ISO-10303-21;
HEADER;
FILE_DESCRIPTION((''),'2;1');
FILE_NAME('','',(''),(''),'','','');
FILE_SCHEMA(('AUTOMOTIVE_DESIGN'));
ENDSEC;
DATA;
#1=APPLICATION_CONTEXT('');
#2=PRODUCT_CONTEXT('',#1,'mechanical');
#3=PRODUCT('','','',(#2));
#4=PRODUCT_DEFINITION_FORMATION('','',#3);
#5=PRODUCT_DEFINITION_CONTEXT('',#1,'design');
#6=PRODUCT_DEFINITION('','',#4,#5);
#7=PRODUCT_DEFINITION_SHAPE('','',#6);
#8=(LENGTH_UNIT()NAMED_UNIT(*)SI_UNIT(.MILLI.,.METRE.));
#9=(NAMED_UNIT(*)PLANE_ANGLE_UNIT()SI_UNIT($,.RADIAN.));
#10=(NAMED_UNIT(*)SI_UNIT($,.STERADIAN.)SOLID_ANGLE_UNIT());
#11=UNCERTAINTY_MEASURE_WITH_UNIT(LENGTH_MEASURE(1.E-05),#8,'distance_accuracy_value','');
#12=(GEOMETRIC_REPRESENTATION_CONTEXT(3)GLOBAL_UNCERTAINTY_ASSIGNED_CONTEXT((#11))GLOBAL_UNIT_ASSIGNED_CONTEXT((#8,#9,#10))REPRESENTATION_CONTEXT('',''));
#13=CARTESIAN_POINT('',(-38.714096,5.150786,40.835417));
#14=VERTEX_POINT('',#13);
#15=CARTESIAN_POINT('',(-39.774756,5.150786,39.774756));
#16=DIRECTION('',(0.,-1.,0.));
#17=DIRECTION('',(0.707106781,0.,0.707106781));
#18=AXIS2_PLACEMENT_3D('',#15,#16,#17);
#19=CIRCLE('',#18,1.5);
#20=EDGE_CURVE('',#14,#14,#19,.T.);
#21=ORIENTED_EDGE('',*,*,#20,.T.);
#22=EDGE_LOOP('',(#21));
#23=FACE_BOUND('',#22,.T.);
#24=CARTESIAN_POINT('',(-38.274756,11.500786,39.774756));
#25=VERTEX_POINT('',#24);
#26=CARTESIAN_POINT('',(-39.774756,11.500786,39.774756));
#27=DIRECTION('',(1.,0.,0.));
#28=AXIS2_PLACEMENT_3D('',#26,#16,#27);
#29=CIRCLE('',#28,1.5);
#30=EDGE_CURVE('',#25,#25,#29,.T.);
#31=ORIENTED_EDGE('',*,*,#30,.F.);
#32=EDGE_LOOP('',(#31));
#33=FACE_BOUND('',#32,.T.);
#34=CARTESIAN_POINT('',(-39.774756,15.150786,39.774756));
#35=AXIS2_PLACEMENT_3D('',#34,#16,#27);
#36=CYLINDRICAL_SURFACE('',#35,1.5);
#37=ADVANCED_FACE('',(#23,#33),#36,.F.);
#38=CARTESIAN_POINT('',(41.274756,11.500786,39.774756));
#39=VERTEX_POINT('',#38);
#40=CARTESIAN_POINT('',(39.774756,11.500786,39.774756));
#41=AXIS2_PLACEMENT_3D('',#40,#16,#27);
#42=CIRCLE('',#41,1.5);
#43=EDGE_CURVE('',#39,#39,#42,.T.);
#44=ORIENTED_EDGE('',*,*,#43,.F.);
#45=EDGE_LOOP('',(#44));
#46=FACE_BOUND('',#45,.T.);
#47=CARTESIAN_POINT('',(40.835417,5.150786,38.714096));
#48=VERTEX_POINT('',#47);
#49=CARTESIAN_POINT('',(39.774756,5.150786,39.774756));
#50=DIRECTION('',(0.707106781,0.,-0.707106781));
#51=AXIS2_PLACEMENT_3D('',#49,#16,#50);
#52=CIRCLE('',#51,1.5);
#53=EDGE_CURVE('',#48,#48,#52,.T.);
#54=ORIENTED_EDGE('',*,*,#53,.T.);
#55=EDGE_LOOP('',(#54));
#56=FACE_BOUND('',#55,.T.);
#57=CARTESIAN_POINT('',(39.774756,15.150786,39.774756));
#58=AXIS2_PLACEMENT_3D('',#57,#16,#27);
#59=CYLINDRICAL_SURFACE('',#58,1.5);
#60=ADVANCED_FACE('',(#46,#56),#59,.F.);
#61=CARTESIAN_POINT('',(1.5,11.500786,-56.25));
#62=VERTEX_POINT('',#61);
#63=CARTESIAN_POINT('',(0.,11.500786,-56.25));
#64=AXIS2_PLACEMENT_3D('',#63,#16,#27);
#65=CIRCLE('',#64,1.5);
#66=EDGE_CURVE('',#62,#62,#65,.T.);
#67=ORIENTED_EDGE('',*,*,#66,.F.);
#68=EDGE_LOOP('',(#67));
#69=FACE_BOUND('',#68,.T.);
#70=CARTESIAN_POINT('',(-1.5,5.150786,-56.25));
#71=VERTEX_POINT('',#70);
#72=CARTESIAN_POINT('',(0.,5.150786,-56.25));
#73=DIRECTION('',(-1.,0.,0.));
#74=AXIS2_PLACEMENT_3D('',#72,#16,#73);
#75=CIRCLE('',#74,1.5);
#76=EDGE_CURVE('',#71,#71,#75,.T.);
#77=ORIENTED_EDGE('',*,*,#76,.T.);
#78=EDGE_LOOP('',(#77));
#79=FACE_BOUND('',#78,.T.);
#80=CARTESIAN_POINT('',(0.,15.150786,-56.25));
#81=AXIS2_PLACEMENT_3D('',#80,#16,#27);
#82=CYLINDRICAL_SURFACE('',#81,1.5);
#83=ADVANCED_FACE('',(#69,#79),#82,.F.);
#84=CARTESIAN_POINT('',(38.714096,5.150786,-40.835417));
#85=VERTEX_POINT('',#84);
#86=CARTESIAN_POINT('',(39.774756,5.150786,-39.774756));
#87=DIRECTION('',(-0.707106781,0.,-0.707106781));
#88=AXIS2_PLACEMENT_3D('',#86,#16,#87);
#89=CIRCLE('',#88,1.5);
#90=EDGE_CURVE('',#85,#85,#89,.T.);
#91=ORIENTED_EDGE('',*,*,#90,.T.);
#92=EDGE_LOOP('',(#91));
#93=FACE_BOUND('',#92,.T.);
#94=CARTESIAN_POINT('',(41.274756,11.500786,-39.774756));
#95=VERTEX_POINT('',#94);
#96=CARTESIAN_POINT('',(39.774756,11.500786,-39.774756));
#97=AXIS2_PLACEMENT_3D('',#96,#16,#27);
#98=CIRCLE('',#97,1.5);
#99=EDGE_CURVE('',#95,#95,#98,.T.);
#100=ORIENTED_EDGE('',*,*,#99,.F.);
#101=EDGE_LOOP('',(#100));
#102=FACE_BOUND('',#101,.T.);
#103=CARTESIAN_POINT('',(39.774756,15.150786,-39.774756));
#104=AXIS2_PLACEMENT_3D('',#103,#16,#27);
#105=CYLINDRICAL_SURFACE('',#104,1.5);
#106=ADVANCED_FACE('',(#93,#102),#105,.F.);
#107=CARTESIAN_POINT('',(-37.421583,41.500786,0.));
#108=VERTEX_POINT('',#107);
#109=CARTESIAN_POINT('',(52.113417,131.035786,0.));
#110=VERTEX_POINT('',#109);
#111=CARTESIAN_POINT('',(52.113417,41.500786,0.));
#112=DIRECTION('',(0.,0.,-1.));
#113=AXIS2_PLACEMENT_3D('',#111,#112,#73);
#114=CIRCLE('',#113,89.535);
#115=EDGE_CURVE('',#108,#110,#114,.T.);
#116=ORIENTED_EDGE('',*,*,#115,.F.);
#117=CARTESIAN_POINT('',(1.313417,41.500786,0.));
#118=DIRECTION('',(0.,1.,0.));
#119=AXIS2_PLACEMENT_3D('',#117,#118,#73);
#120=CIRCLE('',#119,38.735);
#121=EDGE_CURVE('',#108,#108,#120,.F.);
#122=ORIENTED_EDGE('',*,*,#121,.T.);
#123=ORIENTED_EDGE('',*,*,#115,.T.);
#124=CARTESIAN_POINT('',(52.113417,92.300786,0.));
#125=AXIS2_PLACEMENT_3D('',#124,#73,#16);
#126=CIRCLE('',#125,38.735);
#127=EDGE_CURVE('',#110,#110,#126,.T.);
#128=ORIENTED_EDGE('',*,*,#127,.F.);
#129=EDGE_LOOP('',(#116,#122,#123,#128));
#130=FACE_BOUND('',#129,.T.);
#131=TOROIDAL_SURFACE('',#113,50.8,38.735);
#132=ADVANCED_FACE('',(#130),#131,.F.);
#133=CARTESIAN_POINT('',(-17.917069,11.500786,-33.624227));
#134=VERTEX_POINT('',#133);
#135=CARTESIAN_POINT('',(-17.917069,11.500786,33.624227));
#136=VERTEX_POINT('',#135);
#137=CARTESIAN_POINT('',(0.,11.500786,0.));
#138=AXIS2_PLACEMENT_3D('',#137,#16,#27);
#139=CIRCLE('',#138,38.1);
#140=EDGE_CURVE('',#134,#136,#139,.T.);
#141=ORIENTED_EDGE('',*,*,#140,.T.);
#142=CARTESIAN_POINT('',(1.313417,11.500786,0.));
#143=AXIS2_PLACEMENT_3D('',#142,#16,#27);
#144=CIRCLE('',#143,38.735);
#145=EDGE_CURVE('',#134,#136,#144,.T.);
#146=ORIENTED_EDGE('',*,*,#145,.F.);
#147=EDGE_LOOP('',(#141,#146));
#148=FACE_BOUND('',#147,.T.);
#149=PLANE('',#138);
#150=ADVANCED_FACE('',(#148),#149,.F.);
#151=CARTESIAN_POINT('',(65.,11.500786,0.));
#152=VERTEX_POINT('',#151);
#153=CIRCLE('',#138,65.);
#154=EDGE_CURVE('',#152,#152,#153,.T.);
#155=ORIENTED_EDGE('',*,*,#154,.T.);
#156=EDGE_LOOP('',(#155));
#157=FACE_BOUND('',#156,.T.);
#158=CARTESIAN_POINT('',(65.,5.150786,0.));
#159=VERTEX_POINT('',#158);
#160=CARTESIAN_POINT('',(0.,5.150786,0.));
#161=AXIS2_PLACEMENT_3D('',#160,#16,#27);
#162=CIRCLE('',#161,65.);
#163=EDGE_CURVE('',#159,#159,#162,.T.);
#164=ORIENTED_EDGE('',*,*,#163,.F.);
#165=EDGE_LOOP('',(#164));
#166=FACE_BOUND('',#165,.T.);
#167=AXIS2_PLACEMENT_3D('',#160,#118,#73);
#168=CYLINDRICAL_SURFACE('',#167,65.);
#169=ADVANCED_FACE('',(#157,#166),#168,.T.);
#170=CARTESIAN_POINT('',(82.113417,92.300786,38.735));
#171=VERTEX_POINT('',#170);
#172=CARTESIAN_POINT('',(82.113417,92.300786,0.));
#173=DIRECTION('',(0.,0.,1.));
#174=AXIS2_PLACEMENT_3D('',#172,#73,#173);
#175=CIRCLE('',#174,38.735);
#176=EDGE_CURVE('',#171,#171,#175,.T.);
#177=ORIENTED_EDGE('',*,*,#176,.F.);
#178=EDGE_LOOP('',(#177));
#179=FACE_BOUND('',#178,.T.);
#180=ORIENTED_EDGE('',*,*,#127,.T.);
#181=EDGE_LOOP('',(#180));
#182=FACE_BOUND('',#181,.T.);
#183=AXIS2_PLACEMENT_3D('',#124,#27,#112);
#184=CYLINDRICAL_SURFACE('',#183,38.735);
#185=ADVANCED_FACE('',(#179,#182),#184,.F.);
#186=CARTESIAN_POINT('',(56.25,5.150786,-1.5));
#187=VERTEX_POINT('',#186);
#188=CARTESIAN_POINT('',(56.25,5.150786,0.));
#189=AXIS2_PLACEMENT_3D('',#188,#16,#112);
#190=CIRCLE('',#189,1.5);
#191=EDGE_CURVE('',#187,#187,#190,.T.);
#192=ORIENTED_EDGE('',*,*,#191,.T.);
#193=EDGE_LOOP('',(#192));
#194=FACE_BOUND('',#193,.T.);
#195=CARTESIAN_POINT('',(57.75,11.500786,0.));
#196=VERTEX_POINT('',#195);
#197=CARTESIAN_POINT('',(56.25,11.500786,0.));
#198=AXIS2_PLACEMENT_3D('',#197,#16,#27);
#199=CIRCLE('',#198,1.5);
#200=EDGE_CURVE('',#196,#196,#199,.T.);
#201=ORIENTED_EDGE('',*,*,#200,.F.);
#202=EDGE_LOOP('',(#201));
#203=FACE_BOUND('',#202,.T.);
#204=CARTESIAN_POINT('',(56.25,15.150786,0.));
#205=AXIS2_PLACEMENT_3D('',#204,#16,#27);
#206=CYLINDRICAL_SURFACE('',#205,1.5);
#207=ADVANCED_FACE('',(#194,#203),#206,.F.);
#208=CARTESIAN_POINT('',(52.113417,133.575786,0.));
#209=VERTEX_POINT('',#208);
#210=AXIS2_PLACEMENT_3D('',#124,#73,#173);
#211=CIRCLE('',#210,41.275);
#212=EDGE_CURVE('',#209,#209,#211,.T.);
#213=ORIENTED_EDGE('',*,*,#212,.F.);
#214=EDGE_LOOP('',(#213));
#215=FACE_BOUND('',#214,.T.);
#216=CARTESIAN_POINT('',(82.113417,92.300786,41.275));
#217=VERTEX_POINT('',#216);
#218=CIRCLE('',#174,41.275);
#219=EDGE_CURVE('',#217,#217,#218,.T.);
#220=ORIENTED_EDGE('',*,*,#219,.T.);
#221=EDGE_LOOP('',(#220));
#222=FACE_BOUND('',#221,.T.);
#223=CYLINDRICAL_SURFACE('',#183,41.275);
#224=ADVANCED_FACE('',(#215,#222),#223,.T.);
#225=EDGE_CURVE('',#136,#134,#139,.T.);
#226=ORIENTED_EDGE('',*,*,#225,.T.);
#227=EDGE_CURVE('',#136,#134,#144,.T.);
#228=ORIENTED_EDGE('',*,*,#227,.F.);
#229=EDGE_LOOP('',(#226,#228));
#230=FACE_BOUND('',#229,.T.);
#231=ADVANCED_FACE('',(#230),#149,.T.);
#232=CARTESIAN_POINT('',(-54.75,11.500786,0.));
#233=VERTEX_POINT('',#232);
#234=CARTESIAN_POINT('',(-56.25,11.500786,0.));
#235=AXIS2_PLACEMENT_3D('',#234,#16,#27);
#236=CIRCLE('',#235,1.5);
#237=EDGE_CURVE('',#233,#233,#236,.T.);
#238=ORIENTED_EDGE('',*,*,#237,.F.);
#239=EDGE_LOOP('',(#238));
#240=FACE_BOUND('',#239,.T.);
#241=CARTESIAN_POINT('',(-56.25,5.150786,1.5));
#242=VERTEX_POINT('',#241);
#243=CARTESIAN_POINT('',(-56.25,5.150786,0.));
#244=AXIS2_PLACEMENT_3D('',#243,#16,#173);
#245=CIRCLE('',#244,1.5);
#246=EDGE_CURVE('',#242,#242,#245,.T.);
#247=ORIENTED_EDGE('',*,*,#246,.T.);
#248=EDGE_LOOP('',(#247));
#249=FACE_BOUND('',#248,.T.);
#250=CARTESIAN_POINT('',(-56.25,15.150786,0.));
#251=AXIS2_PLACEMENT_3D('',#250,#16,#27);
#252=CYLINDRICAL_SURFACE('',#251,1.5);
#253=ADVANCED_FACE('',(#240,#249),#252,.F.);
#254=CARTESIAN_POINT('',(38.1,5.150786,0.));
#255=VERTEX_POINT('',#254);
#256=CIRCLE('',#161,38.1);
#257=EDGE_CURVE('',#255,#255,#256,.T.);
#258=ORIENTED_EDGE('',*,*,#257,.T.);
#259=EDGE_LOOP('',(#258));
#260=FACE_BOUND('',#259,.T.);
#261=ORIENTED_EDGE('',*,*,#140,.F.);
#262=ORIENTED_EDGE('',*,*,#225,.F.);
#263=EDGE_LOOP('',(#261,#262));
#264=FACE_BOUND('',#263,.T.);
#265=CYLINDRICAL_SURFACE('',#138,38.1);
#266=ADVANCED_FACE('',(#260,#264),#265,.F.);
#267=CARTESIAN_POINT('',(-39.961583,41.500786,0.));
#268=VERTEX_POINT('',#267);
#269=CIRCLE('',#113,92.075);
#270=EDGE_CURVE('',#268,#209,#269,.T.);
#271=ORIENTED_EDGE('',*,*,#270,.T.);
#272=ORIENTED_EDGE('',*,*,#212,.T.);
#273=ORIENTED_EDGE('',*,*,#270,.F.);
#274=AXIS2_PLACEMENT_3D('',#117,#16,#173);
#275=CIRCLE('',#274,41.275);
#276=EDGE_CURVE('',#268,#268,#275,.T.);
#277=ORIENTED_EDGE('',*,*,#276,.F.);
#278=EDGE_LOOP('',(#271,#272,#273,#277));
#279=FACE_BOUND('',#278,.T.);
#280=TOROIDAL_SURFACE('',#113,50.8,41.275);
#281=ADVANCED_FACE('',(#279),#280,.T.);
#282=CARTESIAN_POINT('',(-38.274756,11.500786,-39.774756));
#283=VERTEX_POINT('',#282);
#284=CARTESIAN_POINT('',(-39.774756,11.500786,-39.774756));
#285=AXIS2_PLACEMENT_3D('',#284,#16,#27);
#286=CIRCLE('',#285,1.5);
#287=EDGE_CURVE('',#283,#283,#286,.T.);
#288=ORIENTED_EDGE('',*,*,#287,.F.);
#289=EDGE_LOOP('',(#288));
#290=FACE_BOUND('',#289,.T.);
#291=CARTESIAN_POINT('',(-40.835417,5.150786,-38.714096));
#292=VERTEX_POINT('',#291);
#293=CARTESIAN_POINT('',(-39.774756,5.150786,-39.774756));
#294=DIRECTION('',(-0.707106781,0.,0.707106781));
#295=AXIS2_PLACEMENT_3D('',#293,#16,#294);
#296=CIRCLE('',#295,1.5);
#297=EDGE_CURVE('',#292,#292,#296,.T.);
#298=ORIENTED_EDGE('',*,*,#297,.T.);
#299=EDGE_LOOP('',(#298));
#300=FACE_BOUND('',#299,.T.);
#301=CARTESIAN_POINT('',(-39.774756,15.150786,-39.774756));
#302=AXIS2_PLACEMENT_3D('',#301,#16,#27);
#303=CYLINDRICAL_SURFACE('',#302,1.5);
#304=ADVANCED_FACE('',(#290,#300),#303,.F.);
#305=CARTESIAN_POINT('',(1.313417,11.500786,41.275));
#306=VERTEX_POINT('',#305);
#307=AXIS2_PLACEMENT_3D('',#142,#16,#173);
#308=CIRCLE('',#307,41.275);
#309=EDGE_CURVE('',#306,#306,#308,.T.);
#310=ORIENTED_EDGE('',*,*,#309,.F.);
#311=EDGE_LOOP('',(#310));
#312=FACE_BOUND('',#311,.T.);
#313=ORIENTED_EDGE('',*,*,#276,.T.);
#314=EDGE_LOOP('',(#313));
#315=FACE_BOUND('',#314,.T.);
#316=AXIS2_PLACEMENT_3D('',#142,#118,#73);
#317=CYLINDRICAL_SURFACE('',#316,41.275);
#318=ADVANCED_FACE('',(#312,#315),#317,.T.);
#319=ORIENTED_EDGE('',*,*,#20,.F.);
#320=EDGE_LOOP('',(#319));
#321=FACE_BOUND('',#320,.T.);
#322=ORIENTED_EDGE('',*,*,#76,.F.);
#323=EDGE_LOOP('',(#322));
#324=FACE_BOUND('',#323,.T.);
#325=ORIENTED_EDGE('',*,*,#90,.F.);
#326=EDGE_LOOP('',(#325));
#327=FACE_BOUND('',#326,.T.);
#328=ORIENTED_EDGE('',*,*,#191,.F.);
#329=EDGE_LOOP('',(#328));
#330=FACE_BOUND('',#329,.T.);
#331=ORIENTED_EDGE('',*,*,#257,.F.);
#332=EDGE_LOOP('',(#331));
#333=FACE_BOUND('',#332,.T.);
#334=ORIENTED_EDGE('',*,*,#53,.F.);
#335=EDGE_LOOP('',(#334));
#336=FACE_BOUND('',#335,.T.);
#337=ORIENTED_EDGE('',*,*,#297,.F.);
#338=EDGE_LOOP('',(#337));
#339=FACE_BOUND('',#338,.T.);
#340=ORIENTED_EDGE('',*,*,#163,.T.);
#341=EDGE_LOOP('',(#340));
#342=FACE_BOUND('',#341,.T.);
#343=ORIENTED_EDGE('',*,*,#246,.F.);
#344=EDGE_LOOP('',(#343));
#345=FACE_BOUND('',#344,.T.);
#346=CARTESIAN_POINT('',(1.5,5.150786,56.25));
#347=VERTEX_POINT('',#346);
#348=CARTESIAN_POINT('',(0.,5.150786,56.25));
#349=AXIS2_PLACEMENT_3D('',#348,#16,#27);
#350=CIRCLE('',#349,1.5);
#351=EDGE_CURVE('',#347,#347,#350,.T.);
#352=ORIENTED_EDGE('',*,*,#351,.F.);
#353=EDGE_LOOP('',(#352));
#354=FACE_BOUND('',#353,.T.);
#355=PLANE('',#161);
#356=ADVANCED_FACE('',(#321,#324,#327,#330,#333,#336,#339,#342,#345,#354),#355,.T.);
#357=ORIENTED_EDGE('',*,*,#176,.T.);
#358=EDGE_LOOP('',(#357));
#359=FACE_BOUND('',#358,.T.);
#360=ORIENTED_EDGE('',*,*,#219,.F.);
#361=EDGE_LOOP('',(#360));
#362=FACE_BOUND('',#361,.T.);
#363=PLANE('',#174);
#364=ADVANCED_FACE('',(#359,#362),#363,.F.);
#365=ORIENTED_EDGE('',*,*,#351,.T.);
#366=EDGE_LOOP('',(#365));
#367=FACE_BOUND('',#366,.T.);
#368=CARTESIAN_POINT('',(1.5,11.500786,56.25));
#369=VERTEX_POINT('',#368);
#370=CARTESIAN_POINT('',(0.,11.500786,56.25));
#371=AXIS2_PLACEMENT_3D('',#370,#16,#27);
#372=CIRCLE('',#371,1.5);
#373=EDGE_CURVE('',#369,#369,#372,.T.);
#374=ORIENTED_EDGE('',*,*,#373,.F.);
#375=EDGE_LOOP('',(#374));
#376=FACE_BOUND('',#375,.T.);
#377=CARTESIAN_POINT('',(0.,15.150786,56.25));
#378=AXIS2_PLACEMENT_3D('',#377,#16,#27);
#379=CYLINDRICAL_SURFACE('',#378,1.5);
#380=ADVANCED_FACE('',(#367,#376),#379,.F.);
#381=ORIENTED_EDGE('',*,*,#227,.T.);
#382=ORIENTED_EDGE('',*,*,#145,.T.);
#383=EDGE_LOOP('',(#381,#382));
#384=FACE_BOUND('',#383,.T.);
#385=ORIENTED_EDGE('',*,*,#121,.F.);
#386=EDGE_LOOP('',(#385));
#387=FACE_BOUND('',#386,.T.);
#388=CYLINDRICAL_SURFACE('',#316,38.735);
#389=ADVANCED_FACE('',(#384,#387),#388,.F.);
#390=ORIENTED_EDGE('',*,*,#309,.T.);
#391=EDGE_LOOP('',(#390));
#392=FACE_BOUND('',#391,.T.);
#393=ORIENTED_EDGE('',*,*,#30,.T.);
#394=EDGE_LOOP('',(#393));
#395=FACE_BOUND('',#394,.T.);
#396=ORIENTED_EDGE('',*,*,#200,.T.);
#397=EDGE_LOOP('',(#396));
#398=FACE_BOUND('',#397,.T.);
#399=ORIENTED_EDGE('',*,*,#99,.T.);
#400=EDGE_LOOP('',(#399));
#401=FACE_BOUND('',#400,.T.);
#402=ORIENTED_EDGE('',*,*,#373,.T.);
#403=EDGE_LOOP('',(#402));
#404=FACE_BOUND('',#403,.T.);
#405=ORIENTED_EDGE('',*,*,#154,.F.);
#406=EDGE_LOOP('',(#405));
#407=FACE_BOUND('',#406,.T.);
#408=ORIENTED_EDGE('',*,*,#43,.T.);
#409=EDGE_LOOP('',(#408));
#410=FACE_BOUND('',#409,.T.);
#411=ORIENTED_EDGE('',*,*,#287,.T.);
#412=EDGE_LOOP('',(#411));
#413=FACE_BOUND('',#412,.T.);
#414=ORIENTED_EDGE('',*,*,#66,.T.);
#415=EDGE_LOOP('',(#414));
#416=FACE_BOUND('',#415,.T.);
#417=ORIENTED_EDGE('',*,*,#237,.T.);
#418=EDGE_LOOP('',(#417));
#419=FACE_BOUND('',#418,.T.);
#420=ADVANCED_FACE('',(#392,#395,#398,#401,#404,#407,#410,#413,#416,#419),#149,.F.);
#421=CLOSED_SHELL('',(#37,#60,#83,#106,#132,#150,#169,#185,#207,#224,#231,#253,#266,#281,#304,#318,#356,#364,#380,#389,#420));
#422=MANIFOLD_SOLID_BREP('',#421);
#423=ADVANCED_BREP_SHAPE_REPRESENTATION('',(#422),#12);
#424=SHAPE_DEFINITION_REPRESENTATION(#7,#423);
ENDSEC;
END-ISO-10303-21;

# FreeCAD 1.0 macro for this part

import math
import FreeCAD as App
import Part
import Sketcher
from FreeCAD import Vector
Q = App.Units.Quantity


def faces_at(feature, points):
    """Names of the faces that lie closest to the given points."""
    faces = feature.Shape.Faces
    near = lambda p: min(range(len(faces)), key=lambda i: faces[i].distToShape(Part.Vertex(*p))[0])
    return sorted({f"Face{near(p) + 1}" for p in points})

doc = App.newDocument("Part")
params = doc.addObject("Spreadsheet::Sheet", "Params")
for row, (alias, value) in enumerate([
    ("sketch1_diameter", "3.25 in"),
    ("sketch2_radius", "2 in"),
    ("thickness_wall", "0.1 in"),
    ("pad1_length", "0.25 in"),
    ("sketch4_diameter", "3 in"),
    ("pocket1_length", "0.25 in"),
    ("pocket2_length", "10 mm"),
], start=1):
    params.set(f"A{row}", alias)
    params.set(f"B{row}", "=" + value)
    params.setAlias(f"B{row}", alias)

body = doc.addObject("PartDesign::Body", "Body")

sketch1 = body.newObject("Sketcher::SketchObject", "Sketch")
sketch1.AttachmentSupport = (doc.getObject("XZ_Plane"), [""])
sketch1.MapMode = "FlatFace"
sketch1.AttachmentOffset = App.Placement(Vector(0, 0, -11.500786), App.Rotation())
sketch1.addGeometry(Part.Circle(Vector(1.313417, 0, 0), Vector(0, 0, 1), 41.275), False)
sketch1.addConstraint([
    Sketcher.Constraint("PointOnObject", 0, 3, -1),
    Sketcher.Constraint("Diameter", 0, Q("3.25 in")),
    Sketcher.Constraint("DistanceX", -1, 1, 0, 3, Q("1.313417 mm")),
])
sketch1.setExpression("Constraints[1]", "Params.sketch1_diameter")

sketch2 = body.newObject("Sketcher::SketchObject", "Sketch001")
sketch2.AttachmentSupport = (doc.getObject("XY_Plane"), [""])
sketch2.MapMode = "FlatFace"
sketch2.addGeometry([
    Part.LineSegment(Vector(1.313417, 11.500786, 0), Vector(1.313417, 41.500786, 0)),
    Part.ArcOfCircle(Part.Circle(Vector(52.113417, 41.500786, 0), Vector(0, 0, 1), 50.8), math.radians(90), math.radians(180)),
    Part.LineSegment(Vector(52.113417, 92.300786, 0), Vector(82.113417, 92.300786, 0)),
], False)
sketch2.addConstraint([
    Sketcher.Constraint("Tangent", 0, 2, 1, 2),
    Sketcher.Constraint("Tangent", 1, 1, 2, 1),
    Sketcher.Constraint("Vertical", 0),
    Sketcher.Constraint("Horizontal", 2),
    Sketcher.Constraint("Equal", 2, 0),
    Sketcher.Constraint("Radius", 1, Q("2 in")),
    Sketcher.Constraint("DistanceX", 2, 1, 2, 2, Q("30 mm")),
    Sketcher.Constraint("DistanceX", -1, 1, 1, 3, Q("52.113417 mm")),
    Sketcher.Constraint("DistanceY", -1, 1, 1, 3, Q("41.500786 mm")),
])
sketch2.setExpression("Constraints[5]", "Params.sketch2_radius")
doc.recompute()

additivepipe = body.newObject("PartDesign::AdditivePipe", "AdditivePipe")
additivepipe.Profile = sketch1
additivepipe.Spine = (sketch2, ["Edge1", "Edge2", "Edge3"])
doc.recompute()

thickness = body.newObject("PartDesign::Thickness", "Thickness")
thickness.Base = (additivepipe, faces_at(additivepipe, [(82.113, 92.301, 0), (1.313, 11.501, 0)]))
thickness.setExpression("Value", "Params.thickness_wall")
thickness.Reversed = True
thickness.Join = "Intersection"

sketch3 = body.newObject("Sketcher::SketchObject", "Sketch002")
sketch3.AttachmentSupport = (doc.getObject("XZ_Plane"), [""])
sketch3.MapMode = "FlatFace"
sketch3.AttachmentOffset = App.Placement(Vector(0, 0, -11.500786), App.Rotation())
sketch3.addGeometry(Part.Circle(Vector(0, 0, 0), Vector(0, 0, 1), 65), False)
sketch3.addConstraint([
    Sketcher.Constraint("Coincident", 0, 3, -1, 1),
    Sketcher.Constraint("Diameter", 0, Q("130 mm")),
])
pad1 = body.newObject("PartDesign::Pad", "Pad")
pad1.Profile = sketch3
pad1.setExpression("Length", "Params.pad1_length")

sketch4 = body.newObject("Sketcher::SketchObject", "Sketch003")
sketch4.AttachmentSupport = (doc.getObject("XZ_Plane"), [""])
sketch4.MapMode = "FlatFace"
sketch4.AttachmentOffset = App.Placement(Vector(0, 0, -5.150786), App.Rotation())
sketch4.addGeometry(Part.Circle(Vector(0, 0, 0), Vector(0, 0, 1), 38.1), False)
sketch4.addConstraint([
    Sketcher.Constraint("Coincident", 0, 3, -1, 1),
    Sketcher.Constraint("Diameter", 0, Q("3 in")),
])
sketch4.setExpression("Constraints[1]", "Params.sketch4_diameter")
pocket1 = body.newObject("PartDesign::Pocket", "Pocket")
pocket1.Profile = sketch4
pocket1.setExpression("Length", "Params.pocket1_length")

sketch5 = body.newObject("Sketcher::SketchObject", "Sketch004")
sketch5.AttachmentSupport = (doc.getObject("XZ_Plane"), [""])
sketch5.MapMode = "FlatFace"
sketch5.AttachmentOffset = App.Placement(Vector(0, 0, -5.150786), App.Rotation())
sketch5.addGeometry(Part.Circle(Vector(0, 56.25, 0), Vector(0, 0, 1), 1.5), False)
sketch5.addConstraint([
    Sketcher.Constraint("PointOnObject", 0, 3, -2),
    Sketcher.Constraint("Diameter", 0, Q("3 mm")),
    Sketcher.Constraint("DistanceY", -1, 1, 0, 3, Q("56.25 mm")),
])
pocket2 = body.newObject("PartDesign::Pocket", "Pocket001")
pocket2.Profile = sketch5
pocket2.setExpression("Length", "Params.pocket2_length")
doc.recompute()

polarpattern = body.newObject("PartDesign::PolarPattern", "PolarPattern")
polarpattern.Originals = [pocket2]
polarpattern.Axis = (doc.getObject("Y_Axis"), [""])
polarpattern.Angle = 360
polarpattern.Occurrences = 8
body.Tip = polarpattern

doc.recompute()
